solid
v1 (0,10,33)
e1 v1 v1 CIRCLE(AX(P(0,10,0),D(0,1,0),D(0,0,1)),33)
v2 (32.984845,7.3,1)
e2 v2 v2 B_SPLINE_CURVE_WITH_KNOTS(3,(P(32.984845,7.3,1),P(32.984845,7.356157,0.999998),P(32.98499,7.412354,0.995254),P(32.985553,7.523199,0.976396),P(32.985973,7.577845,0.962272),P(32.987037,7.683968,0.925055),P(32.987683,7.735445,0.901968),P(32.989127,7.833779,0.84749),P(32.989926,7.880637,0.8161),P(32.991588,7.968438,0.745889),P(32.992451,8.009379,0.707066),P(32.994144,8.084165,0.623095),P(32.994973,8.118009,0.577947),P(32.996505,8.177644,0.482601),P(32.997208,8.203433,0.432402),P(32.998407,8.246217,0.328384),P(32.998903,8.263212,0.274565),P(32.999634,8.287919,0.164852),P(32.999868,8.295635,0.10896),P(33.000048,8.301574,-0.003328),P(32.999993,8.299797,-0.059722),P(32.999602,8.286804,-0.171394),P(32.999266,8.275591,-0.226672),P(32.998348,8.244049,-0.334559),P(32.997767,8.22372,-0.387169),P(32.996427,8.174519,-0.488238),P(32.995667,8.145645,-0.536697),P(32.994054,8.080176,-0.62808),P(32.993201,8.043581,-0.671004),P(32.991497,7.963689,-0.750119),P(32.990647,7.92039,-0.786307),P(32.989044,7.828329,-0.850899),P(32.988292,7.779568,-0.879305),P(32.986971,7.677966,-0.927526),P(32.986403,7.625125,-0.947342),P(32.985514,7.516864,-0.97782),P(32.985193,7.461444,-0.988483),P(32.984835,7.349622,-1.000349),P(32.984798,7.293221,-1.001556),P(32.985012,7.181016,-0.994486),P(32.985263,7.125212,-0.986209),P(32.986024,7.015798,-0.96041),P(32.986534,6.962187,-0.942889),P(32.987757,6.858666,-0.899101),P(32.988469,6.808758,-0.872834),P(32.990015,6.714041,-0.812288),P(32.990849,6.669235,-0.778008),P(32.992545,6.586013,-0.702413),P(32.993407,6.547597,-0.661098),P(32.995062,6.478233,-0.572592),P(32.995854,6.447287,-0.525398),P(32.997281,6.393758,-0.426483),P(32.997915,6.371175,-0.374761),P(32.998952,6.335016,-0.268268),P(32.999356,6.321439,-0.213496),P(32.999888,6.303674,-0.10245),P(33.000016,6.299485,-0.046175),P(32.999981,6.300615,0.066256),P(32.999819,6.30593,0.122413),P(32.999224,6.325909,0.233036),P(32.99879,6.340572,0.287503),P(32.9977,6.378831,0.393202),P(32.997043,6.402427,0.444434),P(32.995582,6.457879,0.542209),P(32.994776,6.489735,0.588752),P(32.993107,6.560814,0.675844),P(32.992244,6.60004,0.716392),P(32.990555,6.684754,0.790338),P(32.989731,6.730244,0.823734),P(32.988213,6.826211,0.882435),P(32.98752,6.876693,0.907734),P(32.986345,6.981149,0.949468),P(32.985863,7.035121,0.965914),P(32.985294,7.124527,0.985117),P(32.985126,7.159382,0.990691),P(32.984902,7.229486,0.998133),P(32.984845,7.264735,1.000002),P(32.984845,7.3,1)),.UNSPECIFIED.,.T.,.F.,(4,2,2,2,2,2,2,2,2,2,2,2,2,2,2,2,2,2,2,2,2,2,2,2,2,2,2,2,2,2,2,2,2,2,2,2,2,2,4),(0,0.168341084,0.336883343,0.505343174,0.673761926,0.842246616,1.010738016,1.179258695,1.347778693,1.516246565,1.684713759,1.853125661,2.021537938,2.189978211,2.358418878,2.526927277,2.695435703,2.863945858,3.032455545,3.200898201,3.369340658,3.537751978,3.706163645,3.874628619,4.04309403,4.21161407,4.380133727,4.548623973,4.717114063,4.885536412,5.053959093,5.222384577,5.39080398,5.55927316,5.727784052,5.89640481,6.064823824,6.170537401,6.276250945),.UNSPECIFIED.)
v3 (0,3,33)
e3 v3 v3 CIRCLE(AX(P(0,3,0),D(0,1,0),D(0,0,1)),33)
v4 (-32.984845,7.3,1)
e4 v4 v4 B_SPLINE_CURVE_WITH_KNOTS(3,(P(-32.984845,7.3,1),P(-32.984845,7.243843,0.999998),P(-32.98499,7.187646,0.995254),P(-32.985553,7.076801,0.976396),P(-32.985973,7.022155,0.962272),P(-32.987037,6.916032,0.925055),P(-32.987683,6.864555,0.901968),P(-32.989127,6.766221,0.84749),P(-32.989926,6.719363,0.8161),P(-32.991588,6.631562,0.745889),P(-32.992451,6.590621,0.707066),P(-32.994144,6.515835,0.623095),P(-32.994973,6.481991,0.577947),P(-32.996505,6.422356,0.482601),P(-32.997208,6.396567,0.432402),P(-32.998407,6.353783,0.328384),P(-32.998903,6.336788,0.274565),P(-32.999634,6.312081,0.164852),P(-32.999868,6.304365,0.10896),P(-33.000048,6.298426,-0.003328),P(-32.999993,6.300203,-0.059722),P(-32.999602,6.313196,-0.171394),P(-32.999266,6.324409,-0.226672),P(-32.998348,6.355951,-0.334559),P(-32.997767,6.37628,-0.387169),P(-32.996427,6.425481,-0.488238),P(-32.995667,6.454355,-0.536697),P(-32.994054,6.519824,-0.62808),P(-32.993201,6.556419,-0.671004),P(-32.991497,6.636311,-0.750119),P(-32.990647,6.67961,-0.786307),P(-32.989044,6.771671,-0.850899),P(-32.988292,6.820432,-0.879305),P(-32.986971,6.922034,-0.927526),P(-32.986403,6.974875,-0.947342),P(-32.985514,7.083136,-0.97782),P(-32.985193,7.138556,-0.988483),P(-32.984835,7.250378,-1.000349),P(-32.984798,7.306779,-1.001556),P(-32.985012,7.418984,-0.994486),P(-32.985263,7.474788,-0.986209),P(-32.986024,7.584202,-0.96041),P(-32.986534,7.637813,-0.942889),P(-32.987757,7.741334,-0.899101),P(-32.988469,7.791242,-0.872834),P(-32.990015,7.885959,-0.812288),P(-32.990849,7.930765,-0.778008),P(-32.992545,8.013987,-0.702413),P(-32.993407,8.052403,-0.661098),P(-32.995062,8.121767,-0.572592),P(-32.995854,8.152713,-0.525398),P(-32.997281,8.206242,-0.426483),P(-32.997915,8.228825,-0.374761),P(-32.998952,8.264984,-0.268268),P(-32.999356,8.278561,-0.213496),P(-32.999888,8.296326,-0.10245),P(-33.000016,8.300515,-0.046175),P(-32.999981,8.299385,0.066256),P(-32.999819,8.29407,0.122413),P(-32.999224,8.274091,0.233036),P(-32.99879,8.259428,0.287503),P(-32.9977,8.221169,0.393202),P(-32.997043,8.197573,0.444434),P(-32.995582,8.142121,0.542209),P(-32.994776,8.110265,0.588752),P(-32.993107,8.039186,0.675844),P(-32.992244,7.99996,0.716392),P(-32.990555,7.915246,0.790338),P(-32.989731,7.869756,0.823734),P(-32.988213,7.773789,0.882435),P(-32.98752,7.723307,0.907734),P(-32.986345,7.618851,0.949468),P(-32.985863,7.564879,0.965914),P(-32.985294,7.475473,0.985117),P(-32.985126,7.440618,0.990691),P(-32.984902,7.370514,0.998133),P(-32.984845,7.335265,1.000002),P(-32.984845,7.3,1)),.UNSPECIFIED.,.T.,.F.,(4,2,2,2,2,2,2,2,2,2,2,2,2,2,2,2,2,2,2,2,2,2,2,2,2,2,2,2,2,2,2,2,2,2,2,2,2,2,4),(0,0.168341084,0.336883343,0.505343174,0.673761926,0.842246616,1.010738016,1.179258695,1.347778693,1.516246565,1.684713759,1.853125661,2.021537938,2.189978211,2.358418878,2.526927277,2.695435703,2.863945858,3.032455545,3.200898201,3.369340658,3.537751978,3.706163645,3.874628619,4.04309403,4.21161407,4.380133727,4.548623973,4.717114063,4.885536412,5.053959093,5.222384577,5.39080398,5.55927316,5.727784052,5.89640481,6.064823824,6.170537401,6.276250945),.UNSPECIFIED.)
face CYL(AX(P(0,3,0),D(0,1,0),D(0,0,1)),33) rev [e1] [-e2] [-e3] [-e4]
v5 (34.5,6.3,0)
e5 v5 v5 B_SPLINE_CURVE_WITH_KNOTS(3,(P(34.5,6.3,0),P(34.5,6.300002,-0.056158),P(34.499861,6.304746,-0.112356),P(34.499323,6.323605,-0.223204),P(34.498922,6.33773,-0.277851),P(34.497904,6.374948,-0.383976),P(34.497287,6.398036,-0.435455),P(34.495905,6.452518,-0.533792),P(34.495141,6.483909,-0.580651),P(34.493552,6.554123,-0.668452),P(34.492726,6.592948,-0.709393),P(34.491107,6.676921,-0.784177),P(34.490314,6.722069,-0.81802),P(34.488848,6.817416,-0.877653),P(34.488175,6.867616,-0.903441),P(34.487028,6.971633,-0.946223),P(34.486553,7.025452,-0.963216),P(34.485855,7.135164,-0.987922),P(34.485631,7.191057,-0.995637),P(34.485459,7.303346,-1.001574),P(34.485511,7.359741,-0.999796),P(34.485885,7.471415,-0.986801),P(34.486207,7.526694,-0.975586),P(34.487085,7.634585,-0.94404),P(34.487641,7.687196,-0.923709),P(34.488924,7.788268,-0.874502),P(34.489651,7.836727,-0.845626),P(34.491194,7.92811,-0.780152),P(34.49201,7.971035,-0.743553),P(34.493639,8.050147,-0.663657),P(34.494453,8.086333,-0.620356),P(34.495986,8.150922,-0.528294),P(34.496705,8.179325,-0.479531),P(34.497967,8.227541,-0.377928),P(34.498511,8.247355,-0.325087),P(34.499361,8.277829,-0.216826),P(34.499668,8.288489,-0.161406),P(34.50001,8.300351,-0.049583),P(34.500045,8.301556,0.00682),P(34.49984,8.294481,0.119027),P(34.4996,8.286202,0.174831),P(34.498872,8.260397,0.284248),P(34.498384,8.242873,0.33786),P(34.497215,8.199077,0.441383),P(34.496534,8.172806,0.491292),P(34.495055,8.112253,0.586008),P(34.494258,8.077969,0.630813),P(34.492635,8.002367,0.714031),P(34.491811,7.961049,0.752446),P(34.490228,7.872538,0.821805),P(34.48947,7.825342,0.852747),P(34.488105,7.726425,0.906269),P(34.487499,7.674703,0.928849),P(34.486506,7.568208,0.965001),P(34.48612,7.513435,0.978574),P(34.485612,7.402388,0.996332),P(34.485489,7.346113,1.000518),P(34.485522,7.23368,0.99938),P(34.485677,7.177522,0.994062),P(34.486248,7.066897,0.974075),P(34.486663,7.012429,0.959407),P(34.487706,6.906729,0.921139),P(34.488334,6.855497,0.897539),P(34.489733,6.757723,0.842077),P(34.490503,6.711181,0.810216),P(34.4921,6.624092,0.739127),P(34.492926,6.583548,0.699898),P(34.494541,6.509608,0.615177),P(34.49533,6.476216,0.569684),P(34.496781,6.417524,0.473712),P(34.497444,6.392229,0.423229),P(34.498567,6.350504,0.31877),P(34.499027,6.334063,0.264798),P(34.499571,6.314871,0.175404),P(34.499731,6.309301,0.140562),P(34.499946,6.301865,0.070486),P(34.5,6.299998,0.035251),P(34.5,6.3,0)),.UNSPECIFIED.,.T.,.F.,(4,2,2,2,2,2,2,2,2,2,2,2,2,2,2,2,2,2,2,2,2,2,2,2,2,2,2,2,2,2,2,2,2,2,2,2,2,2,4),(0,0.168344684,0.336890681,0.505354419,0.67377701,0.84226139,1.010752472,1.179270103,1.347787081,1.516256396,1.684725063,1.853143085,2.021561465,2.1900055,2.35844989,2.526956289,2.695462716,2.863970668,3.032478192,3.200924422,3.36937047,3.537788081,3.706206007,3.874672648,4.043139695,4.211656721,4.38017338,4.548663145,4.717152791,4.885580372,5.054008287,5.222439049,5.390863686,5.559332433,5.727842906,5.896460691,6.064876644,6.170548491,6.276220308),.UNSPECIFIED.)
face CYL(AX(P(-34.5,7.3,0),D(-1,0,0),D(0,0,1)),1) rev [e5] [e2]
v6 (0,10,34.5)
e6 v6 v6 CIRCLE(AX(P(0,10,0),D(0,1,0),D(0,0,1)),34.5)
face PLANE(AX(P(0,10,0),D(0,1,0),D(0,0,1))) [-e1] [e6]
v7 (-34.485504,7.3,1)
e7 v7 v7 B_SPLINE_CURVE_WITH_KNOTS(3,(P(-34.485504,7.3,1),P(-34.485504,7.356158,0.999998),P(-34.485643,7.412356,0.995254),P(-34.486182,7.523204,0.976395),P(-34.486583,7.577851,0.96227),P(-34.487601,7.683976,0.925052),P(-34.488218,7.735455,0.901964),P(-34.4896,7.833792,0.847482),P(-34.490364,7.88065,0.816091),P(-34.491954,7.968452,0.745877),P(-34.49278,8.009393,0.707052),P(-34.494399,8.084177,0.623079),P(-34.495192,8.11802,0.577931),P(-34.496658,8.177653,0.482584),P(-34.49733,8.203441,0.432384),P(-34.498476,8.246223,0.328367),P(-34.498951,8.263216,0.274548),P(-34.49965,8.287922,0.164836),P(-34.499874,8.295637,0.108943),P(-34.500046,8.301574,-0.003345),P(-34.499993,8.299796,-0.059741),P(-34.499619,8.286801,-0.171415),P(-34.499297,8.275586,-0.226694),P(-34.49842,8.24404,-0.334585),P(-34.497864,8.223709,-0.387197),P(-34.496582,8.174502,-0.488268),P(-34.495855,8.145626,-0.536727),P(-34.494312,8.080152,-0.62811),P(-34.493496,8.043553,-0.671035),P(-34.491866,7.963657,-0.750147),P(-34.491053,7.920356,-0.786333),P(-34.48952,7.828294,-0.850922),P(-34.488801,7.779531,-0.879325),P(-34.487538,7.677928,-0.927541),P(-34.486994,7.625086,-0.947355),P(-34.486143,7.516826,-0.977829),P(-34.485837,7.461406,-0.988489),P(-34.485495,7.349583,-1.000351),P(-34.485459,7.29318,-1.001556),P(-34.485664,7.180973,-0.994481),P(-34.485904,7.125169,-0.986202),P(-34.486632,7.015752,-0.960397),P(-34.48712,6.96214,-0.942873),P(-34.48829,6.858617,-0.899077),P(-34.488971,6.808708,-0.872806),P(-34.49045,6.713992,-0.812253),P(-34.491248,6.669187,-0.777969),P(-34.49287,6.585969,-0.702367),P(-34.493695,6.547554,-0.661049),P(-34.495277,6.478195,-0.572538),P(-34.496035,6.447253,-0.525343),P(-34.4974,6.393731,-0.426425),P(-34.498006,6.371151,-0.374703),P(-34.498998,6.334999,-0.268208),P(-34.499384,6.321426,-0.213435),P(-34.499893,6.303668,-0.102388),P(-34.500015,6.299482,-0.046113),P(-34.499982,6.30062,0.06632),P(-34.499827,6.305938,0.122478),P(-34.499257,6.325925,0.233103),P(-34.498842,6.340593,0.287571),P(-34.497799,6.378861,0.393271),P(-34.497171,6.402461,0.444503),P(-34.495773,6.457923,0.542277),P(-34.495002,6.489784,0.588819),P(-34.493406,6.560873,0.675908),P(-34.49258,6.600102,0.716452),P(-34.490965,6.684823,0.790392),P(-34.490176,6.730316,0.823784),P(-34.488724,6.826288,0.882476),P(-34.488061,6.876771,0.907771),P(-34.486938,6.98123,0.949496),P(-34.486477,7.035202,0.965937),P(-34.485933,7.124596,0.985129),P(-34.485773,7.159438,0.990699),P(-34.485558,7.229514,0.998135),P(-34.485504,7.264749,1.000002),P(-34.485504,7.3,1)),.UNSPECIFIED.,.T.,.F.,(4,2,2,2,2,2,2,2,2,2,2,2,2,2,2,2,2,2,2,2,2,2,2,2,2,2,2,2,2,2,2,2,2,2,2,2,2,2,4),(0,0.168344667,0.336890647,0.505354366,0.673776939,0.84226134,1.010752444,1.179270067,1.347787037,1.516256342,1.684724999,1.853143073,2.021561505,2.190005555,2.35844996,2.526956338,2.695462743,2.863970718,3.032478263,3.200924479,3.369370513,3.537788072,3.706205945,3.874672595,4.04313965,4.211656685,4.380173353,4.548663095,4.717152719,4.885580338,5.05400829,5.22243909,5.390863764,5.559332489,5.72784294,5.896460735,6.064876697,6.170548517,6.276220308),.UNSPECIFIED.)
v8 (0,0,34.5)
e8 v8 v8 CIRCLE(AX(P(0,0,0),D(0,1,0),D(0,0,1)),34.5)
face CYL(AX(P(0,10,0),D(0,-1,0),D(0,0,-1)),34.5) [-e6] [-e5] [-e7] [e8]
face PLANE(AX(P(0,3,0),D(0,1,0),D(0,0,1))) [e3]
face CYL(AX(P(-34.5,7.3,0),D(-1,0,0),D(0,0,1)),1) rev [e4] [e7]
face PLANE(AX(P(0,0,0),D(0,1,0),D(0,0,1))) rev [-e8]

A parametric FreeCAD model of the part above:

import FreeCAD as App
import Part
import Sketcher
from FreeCAD import Vector
Q = App.Units.Quantity

doc = App.newDocument("Part")
params = doc.addObject("Spreadsheet::Sheet", "Params")
for row, (alias, value) in enumerate([
    ("sketch1_diameter", "69 mm"),
    ("pad1_length", "10 mm"),
    ("sketch2_diameter", "66 mm"),
    ("pocket1_length", "7 mm"),
    ("sketch3_diameter", "2 mm"),
], start=1):
    params.set(f"A{row}", alias)
    params.set(f"B{row}", "=" + value)
    params.setAlias(f"B{row}", alias)

body = doc.addObject("PartDesign::Body", "Body")

sketch1 = doc.addObject("Sketcher::SketchObject", "Sketch")
body.addObject(sketch1)
sketch1.AttachmentSupport = (doc.XZ_Plane, [""])
sketch1.MapMode = "FlatFace"
sketch1.addGeometry(Part.Circle(Vector(0, 0, 0), Vector(0, 0, 1), 34), False)
sketch1.addConstraint([
    Sketcher.Constraint("Coincident", 0, 3, -1, 1),
    Sketcher.Constraint("Diameter", 0, Q("69 mm")),
])
sketch1.setExpression("Constraints[1]", "Params.sketch1_diameter")
pad1 = doc.addObject("PartDesign::Pad", "Pad")
body.addObject(pad1)
pad1.Profile = sketch1
pad1.setExpression("Length", "Params.pad1_length")
pad1.Reversed = True

sketch2 = doc.addObject("Sketcher::SketchObject", "Sketch001")
body.addObject(sketch2)
sketch2.AttachmentSupport = (doc.XZ_Plane, [""])
sketch2.MapMode = "FlatFace"
sketch2.AttachmentOffset = App.Placement(Vector(0, 0, -10), App.Rotation())
sketch2.addGeometry(Part.Circle(Vector(0, 0, 0), Vector(0, 0, 1), 33), False)
sketch2.addConstraint([
    Sketcher.Constraint("Coincident", 0, 3, -1, 1),
    Sketcher.Constraint("Diameter", 0, Q("66 mm")),
])
sketch2.setExpression("Constraints[1]", "Params.sketch2_diameter")
pocket1 = doc.addObject("PartDesign::Pocket", "Pocket")
body.addObject(pocket1)
pocket1.Profile = sketch2
pocket1.setExpression("Length", "Params.pocket1_length")
pocket1.Reversed = True

sketch3 = doc.addObject("Sketcher::SketchObject", "Sketch002")
body.addObject(sketch3)
sketch3.AttachmentSupport = (doc.YZ_Plane, [""])
sketch3.MapMode = "FlatFace"
sketch3.AttachmentOffset = App.Placement(Vector(0, 0, -36.085009), App.Rotation())
sketch3.addGeometry(Part.Circle(Vector(7.3, 0, 0), Vector(0, 0, 1), 1), False)
sketch3.addConstraint([
    Sketcher.Constraint("PointOnObject", 0, 3, -1),
    Sketcher.Constraint("Diameter", 0, Q("2 mm")),
    Sketcher.Constraint("DistanceX", -1, 1, 0, 3, Q("7.3 mm")),
])
sketch3.setExpression("Constraints[1]", "Params.sketch3_diameter")
pocket2 = doc.addObject("PartDesign::Pocket", "Pocket001")
body.addObject(pocket2)
pocket2.Profile = sketch3
pocket2.Type = "ThroughAll"
pocket2.Midplane = True

doc.recompute()
